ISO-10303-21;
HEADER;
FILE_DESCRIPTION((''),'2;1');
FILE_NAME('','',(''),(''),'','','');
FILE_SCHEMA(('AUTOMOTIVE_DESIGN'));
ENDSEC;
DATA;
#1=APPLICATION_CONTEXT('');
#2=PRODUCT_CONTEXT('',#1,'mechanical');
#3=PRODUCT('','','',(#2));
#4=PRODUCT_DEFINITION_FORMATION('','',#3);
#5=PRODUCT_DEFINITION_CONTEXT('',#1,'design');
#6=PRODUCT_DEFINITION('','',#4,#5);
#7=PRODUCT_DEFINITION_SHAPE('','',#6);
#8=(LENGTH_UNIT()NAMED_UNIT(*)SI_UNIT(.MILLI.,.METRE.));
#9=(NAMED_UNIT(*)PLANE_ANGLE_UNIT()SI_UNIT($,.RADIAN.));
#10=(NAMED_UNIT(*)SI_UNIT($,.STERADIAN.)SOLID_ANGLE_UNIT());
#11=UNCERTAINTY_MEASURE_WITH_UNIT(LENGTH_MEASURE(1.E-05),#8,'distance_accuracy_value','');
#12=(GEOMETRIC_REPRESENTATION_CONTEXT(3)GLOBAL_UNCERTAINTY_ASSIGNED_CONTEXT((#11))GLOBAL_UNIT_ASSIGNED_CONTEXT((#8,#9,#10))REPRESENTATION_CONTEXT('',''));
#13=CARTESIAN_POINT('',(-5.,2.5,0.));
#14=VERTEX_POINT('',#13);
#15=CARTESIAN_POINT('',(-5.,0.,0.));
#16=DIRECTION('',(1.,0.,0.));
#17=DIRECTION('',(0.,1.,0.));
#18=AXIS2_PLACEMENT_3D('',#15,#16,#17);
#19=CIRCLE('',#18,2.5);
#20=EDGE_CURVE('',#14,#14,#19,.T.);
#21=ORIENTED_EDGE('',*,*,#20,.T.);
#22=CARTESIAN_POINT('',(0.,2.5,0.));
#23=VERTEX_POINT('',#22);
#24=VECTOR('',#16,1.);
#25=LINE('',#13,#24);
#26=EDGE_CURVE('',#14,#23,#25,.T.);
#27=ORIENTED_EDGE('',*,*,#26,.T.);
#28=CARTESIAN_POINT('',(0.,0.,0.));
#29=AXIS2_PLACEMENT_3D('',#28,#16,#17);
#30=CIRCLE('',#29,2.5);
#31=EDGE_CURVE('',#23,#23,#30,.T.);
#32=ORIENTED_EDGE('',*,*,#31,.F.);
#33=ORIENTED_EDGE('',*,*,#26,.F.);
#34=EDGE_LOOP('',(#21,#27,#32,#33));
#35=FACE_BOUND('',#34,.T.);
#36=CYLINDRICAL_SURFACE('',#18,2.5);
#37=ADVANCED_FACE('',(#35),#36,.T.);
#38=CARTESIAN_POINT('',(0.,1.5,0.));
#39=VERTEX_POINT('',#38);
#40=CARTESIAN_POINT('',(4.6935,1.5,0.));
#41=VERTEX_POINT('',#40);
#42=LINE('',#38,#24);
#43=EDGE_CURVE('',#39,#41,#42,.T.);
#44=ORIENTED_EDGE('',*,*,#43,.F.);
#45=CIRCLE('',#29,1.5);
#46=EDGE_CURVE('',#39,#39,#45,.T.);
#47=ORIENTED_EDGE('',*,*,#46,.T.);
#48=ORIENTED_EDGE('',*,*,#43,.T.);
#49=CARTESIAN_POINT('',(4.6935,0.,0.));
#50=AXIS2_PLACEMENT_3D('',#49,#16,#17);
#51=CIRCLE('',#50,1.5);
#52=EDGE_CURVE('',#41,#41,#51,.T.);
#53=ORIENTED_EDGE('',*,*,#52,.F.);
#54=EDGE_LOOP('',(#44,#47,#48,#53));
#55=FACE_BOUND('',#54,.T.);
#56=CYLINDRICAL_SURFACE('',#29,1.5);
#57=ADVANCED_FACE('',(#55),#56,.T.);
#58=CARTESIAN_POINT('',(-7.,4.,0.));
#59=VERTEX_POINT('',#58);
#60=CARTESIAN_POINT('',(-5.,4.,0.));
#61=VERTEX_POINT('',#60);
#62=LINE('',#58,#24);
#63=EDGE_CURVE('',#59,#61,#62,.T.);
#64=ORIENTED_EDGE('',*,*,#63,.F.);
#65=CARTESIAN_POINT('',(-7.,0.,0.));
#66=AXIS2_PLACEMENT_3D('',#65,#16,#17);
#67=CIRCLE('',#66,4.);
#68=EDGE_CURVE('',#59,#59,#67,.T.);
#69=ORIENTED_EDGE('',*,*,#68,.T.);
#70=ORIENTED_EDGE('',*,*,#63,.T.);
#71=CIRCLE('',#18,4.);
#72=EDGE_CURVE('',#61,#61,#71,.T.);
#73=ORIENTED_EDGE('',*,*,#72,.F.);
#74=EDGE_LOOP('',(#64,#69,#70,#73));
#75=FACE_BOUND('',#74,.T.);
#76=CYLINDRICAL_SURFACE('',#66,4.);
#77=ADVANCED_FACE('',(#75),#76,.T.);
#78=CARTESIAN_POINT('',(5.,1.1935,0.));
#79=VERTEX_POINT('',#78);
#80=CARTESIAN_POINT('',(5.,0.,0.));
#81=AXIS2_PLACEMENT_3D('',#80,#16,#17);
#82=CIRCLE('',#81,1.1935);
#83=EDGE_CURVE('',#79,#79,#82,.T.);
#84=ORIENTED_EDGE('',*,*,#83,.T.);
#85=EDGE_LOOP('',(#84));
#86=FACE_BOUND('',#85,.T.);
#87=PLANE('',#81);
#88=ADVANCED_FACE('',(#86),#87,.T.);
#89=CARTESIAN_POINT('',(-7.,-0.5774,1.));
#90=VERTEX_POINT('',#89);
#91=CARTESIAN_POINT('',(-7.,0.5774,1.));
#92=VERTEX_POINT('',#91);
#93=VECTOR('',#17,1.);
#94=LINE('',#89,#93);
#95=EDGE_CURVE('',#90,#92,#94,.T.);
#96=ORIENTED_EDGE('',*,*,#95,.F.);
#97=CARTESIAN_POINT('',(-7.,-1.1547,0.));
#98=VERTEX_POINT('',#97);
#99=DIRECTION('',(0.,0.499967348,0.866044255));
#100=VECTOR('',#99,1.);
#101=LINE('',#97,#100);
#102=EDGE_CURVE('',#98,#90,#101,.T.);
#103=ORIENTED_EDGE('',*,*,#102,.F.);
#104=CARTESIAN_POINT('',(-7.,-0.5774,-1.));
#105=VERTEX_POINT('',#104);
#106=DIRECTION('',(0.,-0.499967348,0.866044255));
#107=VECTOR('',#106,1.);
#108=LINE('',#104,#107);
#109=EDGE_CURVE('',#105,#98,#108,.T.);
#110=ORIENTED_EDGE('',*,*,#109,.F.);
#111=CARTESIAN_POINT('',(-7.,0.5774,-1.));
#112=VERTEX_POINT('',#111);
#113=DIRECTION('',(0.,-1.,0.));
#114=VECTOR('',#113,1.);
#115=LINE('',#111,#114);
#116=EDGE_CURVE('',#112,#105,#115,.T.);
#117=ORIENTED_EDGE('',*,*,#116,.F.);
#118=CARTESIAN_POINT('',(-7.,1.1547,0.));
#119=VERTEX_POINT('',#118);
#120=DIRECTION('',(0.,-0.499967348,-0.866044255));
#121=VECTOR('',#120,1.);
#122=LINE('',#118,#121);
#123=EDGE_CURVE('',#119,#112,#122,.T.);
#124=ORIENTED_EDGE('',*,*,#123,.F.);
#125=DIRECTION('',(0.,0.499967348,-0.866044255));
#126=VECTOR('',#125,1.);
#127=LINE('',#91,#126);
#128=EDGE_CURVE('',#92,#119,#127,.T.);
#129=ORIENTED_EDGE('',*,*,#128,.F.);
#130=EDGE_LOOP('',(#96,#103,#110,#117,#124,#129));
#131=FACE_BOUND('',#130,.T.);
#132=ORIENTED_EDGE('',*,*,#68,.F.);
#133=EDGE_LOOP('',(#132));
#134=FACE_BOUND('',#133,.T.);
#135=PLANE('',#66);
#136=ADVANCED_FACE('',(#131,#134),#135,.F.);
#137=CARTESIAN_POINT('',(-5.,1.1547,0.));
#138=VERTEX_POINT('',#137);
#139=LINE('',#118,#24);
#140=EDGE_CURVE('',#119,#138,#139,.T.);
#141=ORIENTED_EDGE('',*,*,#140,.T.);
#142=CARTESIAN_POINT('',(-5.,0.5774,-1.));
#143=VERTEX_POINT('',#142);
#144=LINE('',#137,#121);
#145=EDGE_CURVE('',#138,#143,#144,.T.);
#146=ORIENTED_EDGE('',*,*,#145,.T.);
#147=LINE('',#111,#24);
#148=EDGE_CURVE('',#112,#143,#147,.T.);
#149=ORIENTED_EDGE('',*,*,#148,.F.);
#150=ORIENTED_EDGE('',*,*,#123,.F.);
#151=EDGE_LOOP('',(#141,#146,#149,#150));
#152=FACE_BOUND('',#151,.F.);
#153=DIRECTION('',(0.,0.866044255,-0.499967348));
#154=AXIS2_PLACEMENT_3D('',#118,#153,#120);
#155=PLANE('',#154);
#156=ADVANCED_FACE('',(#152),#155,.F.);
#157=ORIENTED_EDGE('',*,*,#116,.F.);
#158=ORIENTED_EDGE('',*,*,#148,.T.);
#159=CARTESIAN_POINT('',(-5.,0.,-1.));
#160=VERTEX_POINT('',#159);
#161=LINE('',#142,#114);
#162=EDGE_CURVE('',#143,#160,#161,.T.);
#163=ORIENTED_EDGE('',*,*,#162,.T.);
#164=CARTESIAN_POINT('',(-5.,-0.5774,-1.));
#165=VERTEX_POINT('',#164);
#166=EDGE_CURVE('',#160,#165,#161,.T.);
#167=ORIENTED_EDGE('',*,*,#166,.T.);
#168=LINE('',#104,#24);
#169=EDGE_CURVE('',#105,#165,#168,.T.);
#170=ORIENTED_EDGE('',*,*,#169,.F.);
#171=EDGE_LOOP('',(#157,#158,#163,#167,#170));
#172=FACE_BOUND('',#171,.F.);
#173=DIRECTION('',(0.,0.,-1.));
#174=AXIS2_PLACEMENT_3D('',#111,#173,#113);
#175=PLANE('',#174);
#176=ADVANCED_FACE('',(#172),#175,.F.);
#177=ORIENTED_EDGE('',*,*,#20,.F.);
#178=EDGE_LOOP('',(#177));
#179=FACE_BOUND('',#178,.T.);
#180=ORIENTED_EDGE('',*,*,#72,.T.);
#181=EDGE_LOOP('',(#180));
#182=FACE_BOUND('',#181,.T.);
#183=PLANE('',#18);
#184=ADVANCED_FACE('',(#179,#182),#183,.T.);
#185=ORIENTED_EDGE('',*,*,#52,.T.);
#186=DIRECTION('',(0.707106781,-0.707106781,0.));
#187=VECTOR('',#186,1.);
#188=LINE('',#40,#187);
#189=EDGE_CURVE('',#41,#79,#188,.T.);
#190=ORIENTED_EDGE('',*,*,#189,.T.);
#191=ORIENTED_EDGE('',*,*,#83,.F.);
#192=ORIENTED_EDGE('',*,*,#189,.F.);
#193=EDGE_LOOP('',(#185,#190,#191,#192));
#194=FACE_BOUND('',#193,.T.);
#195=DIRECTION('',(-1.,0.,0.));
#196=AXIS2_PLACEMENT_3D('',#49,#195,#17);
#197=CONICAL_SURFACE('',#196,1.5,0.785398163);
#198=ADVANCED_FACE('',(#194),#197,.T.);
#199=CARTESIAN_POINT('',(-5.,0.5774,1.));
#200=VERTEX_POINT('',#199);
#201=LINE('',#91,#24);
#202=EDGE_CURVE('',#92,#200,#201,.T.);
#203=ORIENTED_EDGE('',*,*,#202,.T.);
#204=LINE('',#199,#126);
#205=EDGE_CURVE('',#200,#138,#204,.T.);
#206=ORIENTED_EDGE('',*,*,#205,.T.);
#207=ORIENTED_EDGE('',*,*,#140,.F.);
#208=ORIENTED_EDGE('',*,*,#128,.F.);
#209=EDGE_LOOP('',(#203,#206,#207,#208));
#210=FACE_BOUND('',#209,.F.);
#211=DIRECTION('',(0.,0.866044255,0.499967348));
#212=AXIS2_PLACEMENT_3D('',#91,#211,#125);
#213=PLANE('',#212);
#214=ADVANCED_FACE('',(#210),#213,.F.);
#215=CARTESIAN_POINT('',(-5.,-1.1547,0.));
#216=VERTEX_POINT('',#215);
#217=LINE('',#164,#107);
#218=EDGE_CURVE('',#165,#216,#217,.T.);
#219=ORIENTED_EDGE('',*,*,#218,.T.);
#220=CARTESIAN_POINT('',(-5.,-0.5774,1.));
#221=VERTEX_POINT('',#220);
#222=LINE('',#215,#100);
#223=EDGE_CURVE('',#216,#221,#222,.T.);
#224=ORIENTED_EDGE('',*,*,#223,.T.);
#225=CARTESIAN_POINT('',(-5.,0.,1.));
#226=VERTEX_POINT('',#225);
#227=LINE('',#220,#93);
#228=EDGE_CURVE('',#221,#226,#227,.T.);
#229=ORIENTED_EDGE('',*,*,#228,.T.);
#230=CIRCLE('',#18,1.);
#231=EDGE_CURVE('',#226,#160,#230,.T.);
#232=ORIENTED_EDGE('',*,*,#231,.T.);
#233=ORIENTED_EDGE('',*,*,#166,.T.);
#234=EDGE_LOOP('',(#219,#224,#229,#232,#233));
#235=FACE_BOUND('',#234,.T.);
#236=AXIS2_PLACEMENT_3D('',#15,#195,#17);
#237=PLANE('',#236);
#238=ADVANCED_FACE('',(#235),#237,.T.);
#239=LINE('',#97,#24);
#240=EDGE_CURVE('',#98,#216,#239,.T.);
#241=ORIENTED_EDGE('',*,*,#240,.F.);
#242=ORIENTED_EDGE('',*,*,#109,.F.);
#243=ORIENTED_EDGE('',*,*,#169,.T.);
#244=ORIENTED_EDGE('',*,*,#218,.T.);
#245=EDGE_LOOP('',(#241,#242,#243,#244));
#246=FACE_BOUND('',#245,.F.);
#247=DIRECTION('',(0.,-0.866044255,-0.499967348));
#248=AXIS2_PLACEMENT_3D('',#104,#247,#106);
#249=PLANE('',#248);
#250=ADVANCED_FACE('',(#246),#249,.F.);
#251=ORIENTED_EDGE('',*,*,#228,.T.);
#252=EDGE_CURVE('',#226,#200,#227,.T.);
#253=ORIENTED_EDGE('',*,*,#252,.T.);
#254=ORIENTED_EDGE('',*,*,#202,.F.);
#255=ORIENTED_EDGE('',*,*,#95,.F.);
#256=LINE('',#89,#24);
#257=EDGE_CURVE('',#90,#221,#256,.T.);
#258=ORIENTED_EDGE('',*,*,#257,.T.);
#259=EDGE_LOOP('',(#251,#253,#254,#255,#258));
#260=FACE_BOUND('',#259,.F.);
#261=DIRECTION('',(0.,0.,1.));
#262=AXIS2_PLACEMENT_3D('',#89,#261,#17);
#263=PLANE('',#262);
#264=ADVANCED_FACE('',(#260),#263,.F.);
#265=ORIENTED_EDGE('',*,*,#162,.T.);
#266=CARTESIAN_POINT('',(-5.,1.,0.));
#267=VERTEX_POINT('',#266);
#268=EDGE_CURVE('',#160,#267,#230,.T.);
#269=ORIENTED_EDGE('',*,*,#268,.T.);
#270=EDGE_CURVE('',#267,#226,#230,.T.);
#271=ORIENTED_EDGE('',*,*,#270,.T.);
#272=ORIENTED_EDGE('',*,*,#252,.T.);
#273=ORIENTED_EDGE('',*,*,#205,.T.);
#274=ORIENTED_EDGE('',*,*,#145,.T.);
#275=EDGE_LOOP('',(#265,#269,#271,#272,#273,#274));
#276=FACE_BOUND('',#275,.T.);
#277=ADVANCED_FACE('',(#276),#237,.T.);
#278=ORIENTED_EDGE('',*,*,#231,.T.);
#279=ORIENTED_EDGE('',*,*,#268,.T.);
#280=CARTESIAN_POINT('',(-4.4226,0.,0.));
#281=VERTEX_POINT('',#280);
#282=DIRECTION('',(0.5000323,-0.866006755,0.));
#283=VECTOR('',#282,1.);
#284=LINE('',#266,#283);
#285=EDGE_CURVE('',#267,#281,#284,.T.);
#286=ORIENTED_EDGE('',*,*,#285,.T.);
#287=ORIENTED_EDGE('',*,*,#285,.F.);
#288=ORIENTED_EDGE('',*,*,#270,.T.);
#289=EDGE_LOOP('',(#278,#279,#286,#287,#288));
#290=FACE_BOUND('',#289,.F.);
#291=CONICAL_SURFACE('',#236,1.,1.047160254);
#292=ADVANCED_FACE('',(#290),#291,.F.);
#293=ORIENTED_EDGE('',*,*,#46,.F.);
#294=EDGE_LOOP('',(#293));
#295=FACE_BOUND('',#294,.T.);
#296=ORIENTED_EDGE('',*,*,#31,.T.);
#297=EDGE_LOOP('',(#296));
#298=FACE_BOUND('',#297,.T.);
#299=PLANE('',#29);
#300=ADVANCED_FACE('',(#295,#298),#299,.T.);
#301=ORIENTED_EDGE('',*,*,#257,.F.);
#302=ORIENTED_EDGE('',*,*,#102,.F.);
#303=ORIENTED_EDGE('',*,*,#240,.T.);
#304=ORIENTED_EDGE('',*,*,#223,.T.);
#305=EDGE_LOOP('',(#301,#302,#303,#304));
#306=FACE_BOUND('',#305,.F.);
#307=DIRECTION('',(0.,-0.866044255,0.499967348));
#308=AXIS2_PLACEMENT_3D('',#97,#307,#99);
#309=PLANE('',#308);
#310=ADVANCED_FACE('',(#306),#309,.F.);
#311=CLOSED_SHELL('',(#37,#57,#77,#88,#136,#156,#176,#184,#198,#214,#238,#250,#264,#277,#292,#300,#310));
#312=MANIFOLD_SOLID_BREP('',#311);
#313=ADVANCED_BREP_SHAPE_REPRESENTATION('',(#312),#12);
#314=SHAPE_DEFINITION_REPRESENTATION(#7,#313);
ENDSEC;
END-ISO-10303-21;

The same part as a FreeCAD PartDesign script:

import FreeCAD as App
import Part
import Sketcher
from FreeCAD import Vector
Q = App.Units.Quantity

doc = App.newDocument("Part")
params = doc.addObject("Spreadsheet::Sheet", "Params")
for row, (alias, value) in enumerate([
    ("sketch1_width", "12 mm"),
    ("sketch1_width2", "5 mm"),
    ("sketch1_width3", "2 mm"),
    ("sketch1_height", "1 mm"),
    ("sketch1_height2", "4 mm"),
    ("revolution_angle", "360 deg"),
    ("pocket1_length", "2 mm"),
    ("sketch3_height", "1 mm"),
    ("groove_angle", "360 deg"),
], start=1):
    params.set(f"A{row}", alias)
    params.set(f"B{row}", "=" + value)
    params.setAlias(f"B{row}", alias)

body = doc.addObject("PartDesign::Body", "Body")

sketch1 = doc.addObject("Sketcher::SketchObject", "Sketch")
body.addObject(sketch1)
sketch1.AttachmentSupport = (doc.XY_Plane, [""])
sketch1.MapMode = "FlatFace"
sketch1.addGeometry([
    Part.LineSegment(Vector(-7, 0, 0), Vector(5, 0, 0)),
    Part.LineSegment(Vector(5, 0, 0), Vector(5, 1.19, 0)),
    Part.LineSegment(Vector(5, 1.19, 0), Vector(4.69, 1.5, 0)),
    Part.LineSegment(Vector(4.69, 1.5, 0), Vector(0, 1.5, 0)),
    Part.LineSegment(Vector(0, 1.5, 0), Vector(0, 2.5, 0)),
    Part.LineSegment(Vector(0, 2.5, 0), Vector(-5, 2.5, 0)),
    Part.LineSegment(Vector(-5, 2.5, 0), Vector(-5, 4, 0)),
    Part.LineSegment(Vector(-5, 4, 0), Vector(-7, 4, 0)),
    Part.LineSegment(Vector(-7, 4, 0), Vector(-7, 0, 0)),
], False)
sketch1.addConstraint([
    Sketcher.Constraint("Coincident", 0, 2, 1, 1),
    Sketcher.Constraint("Coincident", 1, 2, 2, 1),
    Sketcher.Constraint("Coincident", 2, 2, 3, 1),
    Sketcher.Constraint("Coincident", 3, 2, 4, 1),
    Sketcher.Constraint("Coincident", 4, 2, 5, 1),
    Sketcher.Constraint("Coincident", 5, 2, 6, 1),
    Sketcher.Constraint("Coincident", 6, 2, 7, 1),
    Sketcher.Constraint("Coincident", 7, 2, 8, 1),
    Sketcher.Constraint("Coincident", 8, 2, 0, 1),
    Sketcher.Constraint("Horizontal", 0),
    Sketcher.Constraint("Vertical", 1),
    Sketcher.Constraint("Horizontal", 3),
    Sketcher.Constraint("Vertical", 4),
    Sketcher.Constraint("Horizontal", 5),
    Sketcher.Constraint("Vertical", 6),
    Sketcher.Constraint("Horizontal", 7),
    Sketcher.Constraint("Vertical", 8),
    Sketcher.Constraint("PointOnObject", 0, 2, -1),
    Sketcher.Constraint("PointOnObject", 3, 2, -2),
    Sketcher.Constraint("DistanceX", 0, 1, 0, 2, 12.0),
    Sketcher.Constraint("DistanceX", 5, 2, 5, 1, 5.0),
    Sketcher.Constraint("DistanceX", 7, 2, 7, 1, 2.0),
    Sketcher.Constraint("DistanceY", 4, 1, 4, 2, 1.0),
    Sketcher.Constraint("DistanceY", 8, 2, 8, 1, 4.0),
    Sketcher.Constraint("Angle", 2, Q("135 deg")),
    Sketcher.Constraint("DistanceY", 6, 1, 6, 2, 1.5),
    Sketcher.Constraint("DistanceX", 3, 2, 3, 1, 4.6935),
])
sketch1.setExpression("Constraints[19]", "Params.sketch1_width")
sketch1.setExpression("Constraints[20]", "Params.sketch1_width2")
sketch1.setExpression("Constraints[21]", "Params.sketch1_width3")
sketch1.setExpression("Constraints[22]", "Params.sketch1_height")
sketch1.setExpression("Constraints[23]", "Params.sketch1_height2")
revolution = doc.addObject("PartDesign::Revolution", "Revolution")
body.addObject(revolution)
revolution.Profile = sketch1
revolution.ReferenceAxis = (sketch1, ["H_Axis"])
revolution.setExpression("Angle", "Params.revolution_angle")

sketch2 = doc.addObject("Sketcher::SketchObject", "Sketch001")
body.addObject(sketch2)
sketch2.AttachmentSupport = (doc.YZ_Plane, [""])
sketch2.MapMode = "FlatFace"
sketch2.AttachmentOffset = App.Placement(Vector(0, 0, -7), App.Rotation())
sketch2.addGeometry([
    Part.LineSegment(Vector(-0.6, -1, 0), Vector(-1.2, 0, 0)),
    Part.LineSegment(Vector(-1.2, 0, 0), Vector(-0.6, 1, 0)),
    Part.LineSegment(Vector(-0.6, 1, 0), Vector(0.6, 1, 0)),
    Part.LineSegment(Vector(0.6, 1, 0), Vector(1.2, 0, 0)),
    Part.LineSegment(Vector(1.2, 0, 0), Vector(0.6, -1, 0)),
    Part.LineSegment(Vector(0.6, -1, 0), Vector(-0.6, -1, 0)),
], False)
sketch2.addConstraint([
    Sketcher.Constraint("Coincident", 0, 2, 1, 1),
    Sketcher.Constraint("Coincident", 1, 2, 2, 1),
    Sketcher.Constraint("Coincident", 2, 2, 3, 1),
    Sketcher.Constraint("Coincident", 3, 2, 4, 1),
    Sketcher.Constraint("Coincident", 4, 2, 5, 1),
    Sketcher.Constraint("Coincident", 5, 2, 0, 1),
    Sketcher.Constraint("Horizontal", 2),
    Sketcher.Constraint("Horizontal", 5),
    Sketcher.Constraint("Symmetric", 0, 2, 3, 2, -1, 1),
    Sketcher.Constraint("Symmetric", 1, 2, 4, 2, -1, 1),
    Sketcher.Constraint("PointOnObject", 0, 2, -1),
    Sketcher.Constraint("Parallel", 0, 3),
    Sketcher.Constraint("Vertical", 2, 2, 4, 2),
    Sketcher.Constraint("DistanceY", -1, 1, 1, 2, 1.0),
    Sketcher.Constraint("DistanceX", 2, 1, 2, 2, 1.1548),
    Sketcher.Constraint("DistanceX", 0, 2, 2, 2, 1.732),
])
pocket1 = doc.addObject("PartDesign::Pocket", "Pocket")
body.addObject(pocket1)
pocket1.Profile = sketch2
pocket1.setExpression("Length", "Params.pocket1_length")
pocket1.Reversed = True

sketch3 = doc.addObject("Sketcher::SketchObject", "Sketch002")
body.addObject(sketch3)
sketch3.AttachmentSupport = (doc.XY_Plane, [""])
sketch3.MapMode = "FlatFace"
sketch3.addGeometry([
    Part.LineSegment(Vector(-5, 0, 0), Vector(-4.4, 0, 0)),
    Part.LineSegment(Vector(-4.4, 0, 0), Vector(-5, 1, 0)),
    Part.LineSegment(Vector(-5, 1, 0), Vector(-5, 0, 0)),
], False)
sketch3.addConstraint([
    Sketcher.Constraint("Coincident", 0, 2, 1, 1),
    Sketcher.Constraint("Coincident", 1, 2, 2, 1),
    Sketcher.Constraint("Coincident", 2, 2, 0, 1),
    Sketcher.Constraint("Horizontal", 0),
    Sketcher.Constraint("Vertical", 2),
    Sketcher.Constraint("PointOnObject", 0, 2, -1),
    Sketcher.Constraint("DistanceY", 2, 2, 2, 1, 1.0),
    Sketcher.Constraint("DistanceX", 1, 2, -1, 1, 5.0),
    Sketcher.Constraint("DistanceX", 0, 1, 0, 2, 0.5774),
])
sketch3.setExpression("Constraints[6]", "Params.sketch3_height")
groove = doc.addObject("PartDesign::Groove", "Groove")
body.addObject(groove)
groove.Profile = sketch3
groove.ReferenceAxis = (sketch3, ["H_Axis"])
groove.setExpression("Angle", "Params.groove_angle")

doc.recompute()
